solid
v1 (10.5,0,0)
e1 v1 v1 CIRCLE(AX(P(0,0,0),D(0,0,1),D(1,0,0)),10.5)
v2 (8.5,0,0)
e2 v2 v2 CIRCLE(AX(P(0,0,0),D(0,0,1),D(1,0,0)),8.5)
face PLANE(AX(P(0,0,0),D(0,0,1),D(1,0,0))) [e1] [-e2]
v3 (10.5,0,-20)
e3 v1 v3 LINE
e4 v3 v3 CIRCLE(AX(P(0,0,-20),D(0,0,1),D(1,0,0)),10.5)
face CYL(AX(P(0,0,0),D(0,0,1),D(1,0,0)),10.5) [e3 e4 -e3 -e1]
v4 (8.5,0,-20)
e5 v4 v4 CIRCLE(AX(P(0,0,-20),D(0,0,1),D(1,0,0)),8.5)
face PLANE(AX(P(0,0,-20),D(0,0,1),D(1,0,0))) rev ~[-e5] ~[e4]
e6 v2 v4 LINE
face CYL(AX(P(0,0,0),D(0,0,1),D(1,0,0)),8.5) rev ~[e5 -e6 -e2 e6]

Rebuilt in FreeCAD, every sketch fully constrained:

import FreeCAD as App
import Part
import Sketcher

V = App.Vector
Q = App.Units.Quantity

doc = App.newDocument("Part")
body = doc.addObject("PartDesign::Body", "Body")

# Sketch on XY plane
sketch1 = body.newObject("Sketcher::SketchObject", "Sketch")
sketch1.AttachmentSupport = (doc.getObject("XY_Plane"), [""])
sketch1.MapMode = "FlatFace"
sketch1.addGeometry([
    Part.Circle(V(0, 0, 0), V(0, 0, 1), 10),
    Part.Circle(V(0, 0, 0), V(0, 0, 1), 8),
], False)
sketch1.addConstraint([
    Sketcher.Constraint("Coincident", 0, 3, -1, 1),
    Sketcher.Constraint("Coincident", 1, 3, -1, 1),
    Sketcher.Constraint("Diameter", 0, Q("21 mm")),
    Sketcher.Constraint("Diameter", 1, Q("17 mm")),
])
pad1 = body.newObject("PartDesign::Pad", "Pad")
pad1.Profile = sketch1
pad1.Length = 20
pad1.Reversed = True

doc.recompute()
